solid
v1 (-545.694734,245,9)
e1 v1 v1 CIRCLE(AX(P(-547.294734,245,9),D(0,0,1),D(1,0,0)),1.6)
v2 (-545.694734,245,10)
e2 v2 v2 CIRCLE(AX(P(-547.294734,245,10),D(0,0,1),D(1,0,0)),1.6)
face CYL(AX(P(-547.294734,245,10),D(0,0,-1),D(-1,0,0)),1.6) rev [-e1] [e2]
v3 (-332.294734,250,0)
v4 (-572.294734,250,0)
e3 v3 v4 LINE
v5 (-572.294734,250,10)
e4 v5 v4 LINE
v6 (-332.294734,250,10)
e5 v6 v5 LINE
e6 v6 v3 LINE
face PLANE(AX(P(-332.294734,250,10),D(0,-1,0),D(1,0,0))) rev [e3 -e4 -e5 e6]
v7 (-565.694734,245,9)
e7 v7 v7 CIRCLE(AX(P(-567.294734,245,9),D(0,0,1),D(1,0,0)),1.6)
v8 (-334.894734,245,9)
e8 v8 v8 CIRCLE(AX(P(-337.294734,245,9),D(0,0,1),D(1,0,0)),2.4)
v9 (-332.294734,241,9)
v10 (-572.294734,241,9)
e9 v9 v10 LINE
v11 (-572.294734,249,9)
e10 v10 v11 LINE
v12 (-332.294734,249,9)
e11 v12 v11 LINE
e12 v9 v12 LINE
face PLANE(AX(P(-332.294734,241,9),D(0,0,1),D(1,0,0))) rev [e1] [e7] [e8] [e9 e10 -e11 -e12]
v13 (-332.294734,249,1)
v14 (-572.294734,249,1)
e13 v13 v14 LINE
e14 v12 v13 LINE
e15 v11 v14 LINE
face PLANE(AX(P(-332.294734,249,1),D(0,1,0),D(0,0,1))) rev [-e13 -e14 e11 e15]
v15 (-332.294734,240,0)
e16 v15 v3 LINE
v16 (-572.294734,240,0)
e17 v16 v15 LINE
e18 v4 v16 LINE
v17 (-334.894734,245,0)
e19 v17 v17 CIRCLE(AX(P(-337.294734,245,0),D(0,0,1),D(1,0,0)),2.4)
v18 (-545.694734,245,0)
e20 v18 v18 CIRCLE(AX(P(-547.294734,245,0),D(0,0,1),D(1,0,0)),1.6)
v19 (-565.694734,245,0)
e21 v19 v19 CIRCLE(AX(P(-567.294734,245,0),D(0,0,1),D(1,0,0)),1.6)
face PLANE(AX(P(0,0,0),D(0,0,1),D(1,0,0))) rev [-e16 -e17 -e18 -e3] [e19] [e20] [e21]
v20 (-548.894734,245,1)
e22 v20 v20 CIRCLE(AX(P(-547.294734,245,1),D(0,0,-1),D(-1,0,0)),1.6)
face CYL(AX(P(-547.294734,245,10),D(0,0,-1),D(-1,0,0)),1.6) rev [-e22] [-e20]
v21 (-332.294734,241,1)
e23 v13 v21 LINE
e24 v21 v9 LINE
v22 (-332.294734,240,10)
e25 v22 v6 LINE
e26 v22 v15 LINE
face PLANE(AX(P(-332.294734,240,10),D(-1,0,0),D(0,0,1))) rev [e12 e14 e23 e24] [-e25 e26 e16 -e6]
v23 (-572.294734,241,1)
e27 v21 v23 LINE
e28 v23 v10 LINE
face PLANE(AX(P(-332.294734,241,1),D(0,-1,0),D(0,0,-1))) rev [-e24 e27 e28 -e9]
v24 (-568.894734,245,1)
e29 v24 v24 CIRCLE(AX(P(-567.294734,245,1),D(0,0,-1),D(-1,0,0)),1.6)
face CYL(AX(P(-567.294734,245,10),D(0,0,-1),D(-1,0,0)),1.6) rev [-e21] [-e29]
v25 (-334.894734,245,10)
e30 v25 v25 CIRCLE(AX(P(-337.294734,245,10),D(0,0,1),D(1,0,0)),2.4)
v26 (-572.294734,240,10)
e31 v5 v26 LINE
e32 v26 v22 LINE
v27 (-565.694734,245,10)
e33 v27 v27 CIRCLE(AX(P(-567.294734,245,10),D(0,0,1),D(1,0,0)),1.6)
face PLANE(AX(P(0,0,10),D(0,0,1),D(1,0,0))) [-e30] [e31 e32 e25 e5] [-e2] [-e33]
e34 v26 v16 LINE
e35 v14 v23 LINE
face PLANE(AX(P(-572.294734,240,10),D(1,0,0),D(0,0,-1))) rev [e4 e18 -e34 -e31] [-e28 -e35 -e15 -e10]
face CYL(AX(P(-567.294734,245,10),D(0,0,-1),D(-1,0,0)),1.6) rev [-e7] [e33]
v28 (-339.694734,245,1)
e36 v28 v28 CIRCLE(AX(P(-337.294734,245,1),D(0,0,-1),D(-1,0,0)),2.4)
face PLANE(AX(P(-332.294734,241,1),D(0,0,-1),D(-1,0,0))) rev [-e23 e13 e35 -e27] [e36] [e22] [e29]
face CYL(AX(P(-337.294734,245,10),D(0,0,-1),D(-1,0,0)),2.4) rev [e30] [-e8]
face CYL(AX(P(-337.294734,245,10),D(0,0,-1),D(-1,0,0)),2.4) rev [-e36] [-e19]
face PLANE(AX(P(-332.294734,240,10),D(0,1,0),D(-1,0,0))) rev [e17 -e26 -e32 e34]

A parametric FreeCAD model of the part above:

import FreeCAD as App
import Part
import Sketcher

V = App.Vector
Q = App.Units.Quantity


def add_polygon(sketch, points):
    """Adds a closed chain of lines whose ends are joined by coincident constraints."""
    first, n = sketch.GeometryCount, len(points)
    for a, b in zip(points, points[1:] + points[:1]):
        sketch.addGeometry(Part.LineSegment(App.Vector(*a, 0), App.Vector(*b, 0)), False)
    for i in range(n):
        sketch.addConstraint(Sketcher.Constraint("Coincident", first + i, 2, first + (i + 1) % n, 1))

doc = App.newDocument("Part")
params = doc.addObject("Spreadsheet::Sheet", "Params")
for row, (alias, value) in enumerate([
    ("sketch1_diameter", "3.2 mm"),
    ("sketch1_diameter2", "4.8 mm"),
    ("sketch1_width", "240 mm"),
    ("sketch1_height", "10 mm"),
    ("pad1_length", "10 mm"),
    ("sketch2_width", "8 mm"),
], start=1):
    params.set(f"A{row}", alias)
    params.set(f"B{row}", "=" + value)
    params.setAlias(f"B{row}", alias)

body = doc.addObject("PartDesign::Body", "Body")

# Sketch on XY plane
sketch1 = body.newObject("Sketcher::SketchObject", "Sketch")
sketch1.AttachmentSupport = (doc.getObject("XY_Plane"), [""])
sketch1.MapMode = "FlatFace"
add_polygon(sketch1, [(-572.3, 250), (-572.3, 240), (-332.3, 240), (-332.3, 250)])  # lines 0-3
sketch1.addGeometry(Part.Circle(V(-567.3, 245, 0), V(0, 0, 1), 1.6), False)  # 4
sketch1.addGeometry(Part.Circle(V(-547.3, 245, 0), V(0, 0, 1), 1.6), False)  # 5
sketch1.addGeometry(Part.Circle(V(-337.3, 245, 0), V(0, 0, 1), 2.4), False)  # 6
sketch1.addConstraint(Sketcher.Constraint("Vertical", 0))
sketch1.addConstraint(Sketcher.Constraint("Horizontal", 1))
sketch1.addConstraint(Sketcher.Constraint("Vertical", 2))
sketch1.addConstraint(Sketcher.Constraint("Horizontal", 3))
sketch1.addConstraint(Sketcher.Constraint("Equal", 4, 5))
sketch1.addConstraint(Sketcher.Constraint("Horizontal", 4, 3, 5, 3))
sketch1.addConstraint(Sketcher.Constraint("Horizontal", 5, 3, 6, 3))
sketch1.addConstraint(Sketcher.Constraint("Diameter", 4, Q("3.2 mm")))
sketch1.addConstraint(Sketcher.Constraint("Diameter", 6, Q("4.8 mm")))
sketch1.addConstraint(Sketcher.Constraint("DistanceX", 1, 1, 1, 2, Q("240 mm")))
sketch1.addConstraint(Sketcher.Constraint("DistanceY", 0, 2, 0, 1, Q("10 mm")))
sketch1.addConstraint(Sketcher.Constraint("DistanceY", -1, 1, 4, 3, Q("245 mm")))
sketch1.addConstraint(Sketcher.Constraint("DistanceY", -1, 1, 0, 2, Q("240 mm")))
sketch1.addConstraint(Sketcher.Constraint("DistanceX", 4, 3, 5, 3, Q("20 mm")))
sketch1.addConstraint(Sketcher.Constraint("DistanceX", 5, 3, 6, 3, Q("210 mm")))
sketch1.addConstraint(Sketcher.Constraint("DistanceX", 0, 2, 4, 3, Q("5 mm")))
sketch1.addConstraint(Sketcher.Constraint("DistanceX", 4, 3, -1, 1, Q("567.294734 mm")))
sketch1.setExpression("Constraints[11]", "Params.sketch1_diameter")
sketch1.setExpression("Constraints[12]", "Params.sketch1_diameter2")
sketch1.setExpression("Constraints[13]", "Params.sketch1_width")
sketch1.setExpression("Constraints[14]", "Params.sketch1_height")
pad1 = body.newObject("PartDesign::Pad", "Pad")
pad1.Profile = sketch1
pad1.setExpression("Length", "Params.pad1_length")

# Sketch on YZ plane
sketch2 = body.newObject("Sketcher::SketchObject", "Sketch001")
sketch2.AttachmentSupport = (doc.getObject("YZ_Plane"), [""])
sketch2.MapMode = "FlatFace"
sketch2.AttachmentOffset = App.Placement(V(0, 0, -572.294734), App.Rotation())
add_polygon(sketch2, [(249, 1), (241, 1), (241, 9), (249, 9)])  # lines 0-3
sketch2.addConstraint(Sketcher.Constraint("Horizontal", 0))
sketch2.addConstraint(Sketcher.Constraint("Vertical", 1))
sketch2.addConstraint(Sketcher.Constraint("Horizontal", 2))
sketch2.addConstraint(Sketcher.Constraint("Vertical", 3))
sketch2.addConstraint(Sketcher.Constraint("Equal", 2, 1))
sketch2.addConstraint(Sketcher.Constraint("DistanceX", 0, 2, 0, 1, Q("8 mm")))
sketch2.addConstraint(Sketcher.Constraint("DistanceX", -1, 1, 0, 2, Q("241 mm")))
sketch2.addConstraint(Sketcher.Constraint("DistanceY", -1, 1, 0, 2, Q("1 mm")))
sketch2.setExpression("Constraints[9]", "Params.sketch2_width")
pocket1 = body.newObject("PartDesign::Pocket", "Pocket")
pocket1.Profile = sketch2
pocket1.Type = "ThroughAll"
pocket1.Reversed = True

doc.recompute()
